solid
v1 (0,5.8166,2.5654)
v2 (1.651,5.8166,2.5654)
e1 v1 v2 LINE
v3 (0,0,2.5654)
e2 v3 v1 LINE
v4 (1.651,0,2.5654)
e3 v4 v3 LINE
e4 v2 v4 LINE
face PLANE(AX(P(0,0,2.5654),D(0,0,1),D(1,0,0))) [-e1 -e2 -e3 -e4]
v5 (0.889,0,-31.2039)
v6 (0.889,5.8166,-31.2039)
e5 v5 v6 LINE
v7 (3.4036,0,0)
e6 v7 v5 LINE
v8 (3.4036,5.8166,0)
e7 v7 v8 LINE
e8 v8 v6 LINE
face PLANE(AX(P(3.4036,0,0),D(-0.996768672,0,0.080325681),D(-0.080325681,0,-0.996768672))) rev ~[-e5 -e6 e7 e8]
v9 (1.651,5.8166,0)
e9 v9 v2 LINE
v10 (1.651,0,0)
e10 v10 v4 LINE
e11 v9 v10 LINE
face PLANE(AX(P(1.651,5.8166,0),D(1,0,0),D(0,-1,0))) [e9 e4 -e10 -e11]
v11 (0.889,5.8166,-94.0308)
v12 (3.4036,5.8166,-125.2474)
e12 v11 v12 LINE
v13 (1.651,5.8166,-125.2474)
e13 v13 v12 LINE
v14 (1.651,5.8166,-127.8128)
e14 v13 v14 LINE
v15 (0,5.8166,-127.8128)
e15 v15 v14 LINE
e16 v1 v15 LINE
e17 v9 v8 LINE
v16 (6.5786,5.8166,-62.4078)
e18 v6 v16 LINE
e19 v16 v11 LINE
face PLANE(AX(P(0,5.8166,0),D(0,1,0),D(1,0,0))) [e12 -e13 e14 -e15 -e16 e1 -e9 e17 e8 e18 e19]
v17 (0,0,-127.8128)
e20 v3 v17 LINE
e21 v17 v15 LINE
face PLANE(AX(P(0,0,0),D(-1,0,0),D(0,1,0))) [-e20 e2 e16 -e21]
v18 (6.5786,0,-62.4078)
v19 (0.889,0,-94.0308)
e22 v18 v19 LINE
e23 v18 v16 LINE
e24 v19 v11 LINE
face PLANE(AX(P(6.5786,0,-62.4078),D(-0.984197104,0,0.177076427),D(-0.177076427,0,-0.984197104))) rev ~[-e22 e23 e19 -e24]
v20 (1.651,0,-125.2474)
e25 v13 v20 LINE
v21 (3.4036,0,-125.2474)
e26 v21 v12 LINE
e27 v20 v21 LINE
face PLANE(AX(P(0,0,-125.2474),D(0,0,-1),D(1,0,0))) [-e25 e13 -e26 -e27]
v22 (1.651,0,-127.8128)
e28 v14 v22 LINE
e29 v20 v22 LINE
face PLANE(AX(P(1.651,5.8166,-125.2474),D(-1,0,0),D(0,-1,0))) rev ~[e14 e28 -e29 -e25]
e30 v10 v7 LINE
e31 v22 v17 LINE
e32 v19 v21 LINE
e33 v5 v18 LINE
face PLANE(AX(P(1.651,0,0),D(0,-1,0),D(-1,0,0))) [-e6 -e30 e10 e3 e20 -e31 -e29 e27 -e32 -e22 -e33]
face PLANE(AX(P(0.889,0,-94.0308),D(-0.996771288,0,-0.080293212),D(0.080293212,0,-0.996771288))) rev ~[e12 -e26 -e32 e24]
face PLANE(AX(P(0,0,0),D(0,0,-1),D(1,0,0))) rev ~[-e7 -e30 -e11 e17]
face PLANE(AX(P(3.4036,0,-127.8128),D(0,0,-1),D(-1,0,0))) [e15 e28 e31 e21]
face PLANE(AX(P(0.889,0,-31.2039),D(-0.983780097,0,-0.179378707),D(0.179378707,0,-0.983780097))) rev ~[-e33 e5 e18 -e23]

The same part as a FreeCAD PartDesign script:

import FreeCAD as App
import Part
import Sketcher

V = App.Vector
Q = App.Units.Quantity

doc = App.newDocument("Part")
body = doc.addObject("PartDesign::Body", "Body")

# Sketch on XZ plane
sketch1 = body.newObject("Sketcher::SketchObject", "Sketch")
sketch1.AttachmentSupport = (doc.getObject("XZ_Plane"), [""])
sketch1.MapMode = "FlatFace"
sketch1.addGeometry(Part.LineSegment(V(0, -125.2, 0), V(0, 0, 0)), False)
sketch1.addGeometry(Part.LineSegment(V(0, 0, 0), V(3.4, 0, 0)), False)
sketch1.addGeometry(Part.LineSegment(V(3.4, 0, 0), V(0.9, -31.2, 0)), False)
sketch1.addGeometry(Part.LineSegment(V(0.9, -31.2, 0), V(6.6, -62.4, 0)), False)
sketch1.addGeometry(Part.LineSegment(V(6.6, -62.4, 0), V(0.9, -94, 0)), False)
sketch1.addGeometry(Part.LineSegment(V(0.9, -94, 0), V(3.4, -125.2, 0)), False)
sketch1.addGeometry(Part.LineSegment(V(3.4, -125.2, 0), V(0, -125.2, 0)), False)
sketch1.addConstraint(Sketcher.Constraint("Coincident", 0, 2, 1, 1))
sketch1.addConstraint(Sketcher.Constraint("Coincident", 1, 2, 2, 1))
sketch1.addConstraint(Sketcher.Constraint("Coincident", 2, 2, 3, 1))
sketch1.addConstraint(Sketcher.Constraint("Coincident", 3, 2, 4, 1))
sketch1.addConstraint(Sketcher.Constraint("Coincident", 4, 2, 5, 1))
sketch1.addConstraint(Sketcher.Constraint("Coincident", 5, 2, 6, 1))
sketch1.addConstraint(Sketcher.Constraint("Coincident", 6, 2, 0, 1))
sketch1.addConstraint(Sketcher.Constraint("Vertical", 0))
sketch1.addConstraint(Sketcher.Constraint("Horizontal", 1))
sketch1.addConstraint(Sketcher.Constraint("Horizontal", 6))
sketch1.addConstraint(Sketcher.Constraint("Coincident", 0, 2, -1, 1))
sketch1.addConstraint(Sketcher.Constraint("Vertical", 2, 2, 4, 2))
sketch1.addConstraint(Sketcher.Constraint("Vertical", 1, 2, 5, 2))
sketch1.addConstraint(Sketcher.Constraint("DistanceX", 1, 1, 1, 2, Q("0.134 in")))
sketch1.addConstraint(Sketcher.Constraint("DistanceY", 0, 1, 0, 2, Q("4.931 in")))
sketch1.addConstraint(Sketcher.Constraint("DistanceX", -1, 1, 2, 2, Q("0.035 in")))
sketch1.addConstraint(Sketcher.Constraint("DistanceX", -1, 1, 3, 2, Q("0.259 in")))
sketch1.addConstraint(Sketcher.Constraint("DistanceY", 3, 2, -1, 1, Q("2.457 in")))
sketch1.addConstraint(Sketcher.Constraint("DistanceY", 5, 2, 4, 2, Q("1.229 in")))
sketch1.addConstraint(Sketcher.Constraint("DistanceY", 2, 2, -1, 1, Q("1.2285 in")))
pad1 = body.newObject("PartDesign::Pad", "Pad")
pad1.Profile = sketch1
pad1.Length = Q("0.229 in")
pad1.Reversed = True

# Sketch on XY plane
sketch2 = body.newObject("Sketcher::SketchObject", "Sketch001")
sketch2.AttachmentSupport = (doc.getObject("XY_Plane"), [""])
sketch2.MapMode = "FlatFace"
sketch2.AttachmentOffset = App.Placement(V(0, 0, -4.931 * 25.4), App.Rotation())
sketch2.addGeometry(Part.LineSegment(V(1.7, 0, 0), V(0, 0, 0)), False)
sketch2.addGeometry(Part.LineSegment(V(0, 0, 0), V(0, 5.8, 0)), False)
sketch2.addGeometry(Part.LineSegment(V(0, 5.8, 0), V(1.7, 5.8, 0)), False)
sketch2.addGeometry(Part.LineSegment(V(1.7, 5.8, 0), V(1.7, 0, 0)), False)
sketch2.addConstraint(Sketcher.Constraint("Coincident", 0, 2, 1, 1))
sketch2.addConstraint(Sketcher.Constraint("Coincident", 1, 2, 2, 1))
sketch2.addConstraint(Sketcher.Constraint("Coincident", 2, 2, 3, 1))
sketch2.addConstraint(Sketcher.Constraint("Coincident", 3, 2, 0, 1))
sketch2.addConstraint(Sketcher.Constraint("Horizontal", 0))
sketch2.addConstraint(Sketcher.Constraint("Vertical", 1))
sketch2.addConstraint(Sketcher.Constraint("Horizontal", 2))
sketch2.addConstraint(Sketcher.Constraint("Vertical", 3))
sketch2.addConstraint(Sketcher.Constraint("Coincident", 0, 2, -1, 1))
sketch2.addConstraint(Sketcher.Constraint("DistanceX", 0, 2, 0, 1, Q("0.065 in")))
sketch2.addConstraint(Sketcher.Constraint("DistanceY", 1, 1, 1, 2, Q("0.229 in")))
pad2 = body.newObject("PartDesign::Pad", "Pad001")
pad2.Profile = sketch2
pad2.Length = Q("0.101 in")
pad2.Reversed = True

# Sketch on XY plane
sketch3 = body.newObject("Sketcher::SketchObject", "Sketch002")
sketch3.AttachmentSupport = (doc.getObject("XY_Plane"), [""])
sketch3.MapMode = "FlatFace"
sketch3.addGeometry(Part.LineSegment(V(0, 0, 0), V(1.7, 0, 0)), False)
sketch3.addGeometry(Part.LineSegment(V(1.7, 0, 0), V(1.7, 5.8, 0)), False)
sketch3.addGeometry(Part.LineSegment(V(1.7, 5.8, 0), V(0, 5.8, 0)), False)
sketch3.addGeometry(Part.LineSegment(V(0, 5.8, 0), V(0, 0, 0)), False)
sketch3.addConstraint(Sketcher.Constraint("Coincident", 0, 2, 1, 1))
sketch3.addConstraint(Sketcher.Constraint("Coincident", 1, 2, 2, 1))
sketch3.addConstraint(Sketcher.Constraint("Coincident", 2, 2, 3, 1))
sketch3.addConstraint(Sketcher.Constraint("Coincident", 3, 2, 0, 1))
sketch3.addConstraint(Sketcher.Constraint("Horizontal", 0))
sketch3.addConstraint(Sketcher.Constraint("Vertical", 1))
sketch3.addConstraint(Sketcher.Constraint("Horizontal", 2))
sketch3.addConstraint(Sketcher.Constraint("Vertical", 3))
sketch3.addConstraint(Sketcher.Constraint("Coincident", 3, 2, -1, 1))
sketch3.addConstraint(Sketcher.Constraint("DistanceX", 0, 1, 0, 2, Q("0.065 in")))
sketch3.addConstraint(Sketcher.Constraint("DistanceY", 1, 1, 1, 2, Q("0.229 in")))
pad3 = body.newObject("PartDesign::Pad", "Pad002")
pad3.Profile = sketch3
pad3.Length = Q("0.101 in")

doc.recompute()
